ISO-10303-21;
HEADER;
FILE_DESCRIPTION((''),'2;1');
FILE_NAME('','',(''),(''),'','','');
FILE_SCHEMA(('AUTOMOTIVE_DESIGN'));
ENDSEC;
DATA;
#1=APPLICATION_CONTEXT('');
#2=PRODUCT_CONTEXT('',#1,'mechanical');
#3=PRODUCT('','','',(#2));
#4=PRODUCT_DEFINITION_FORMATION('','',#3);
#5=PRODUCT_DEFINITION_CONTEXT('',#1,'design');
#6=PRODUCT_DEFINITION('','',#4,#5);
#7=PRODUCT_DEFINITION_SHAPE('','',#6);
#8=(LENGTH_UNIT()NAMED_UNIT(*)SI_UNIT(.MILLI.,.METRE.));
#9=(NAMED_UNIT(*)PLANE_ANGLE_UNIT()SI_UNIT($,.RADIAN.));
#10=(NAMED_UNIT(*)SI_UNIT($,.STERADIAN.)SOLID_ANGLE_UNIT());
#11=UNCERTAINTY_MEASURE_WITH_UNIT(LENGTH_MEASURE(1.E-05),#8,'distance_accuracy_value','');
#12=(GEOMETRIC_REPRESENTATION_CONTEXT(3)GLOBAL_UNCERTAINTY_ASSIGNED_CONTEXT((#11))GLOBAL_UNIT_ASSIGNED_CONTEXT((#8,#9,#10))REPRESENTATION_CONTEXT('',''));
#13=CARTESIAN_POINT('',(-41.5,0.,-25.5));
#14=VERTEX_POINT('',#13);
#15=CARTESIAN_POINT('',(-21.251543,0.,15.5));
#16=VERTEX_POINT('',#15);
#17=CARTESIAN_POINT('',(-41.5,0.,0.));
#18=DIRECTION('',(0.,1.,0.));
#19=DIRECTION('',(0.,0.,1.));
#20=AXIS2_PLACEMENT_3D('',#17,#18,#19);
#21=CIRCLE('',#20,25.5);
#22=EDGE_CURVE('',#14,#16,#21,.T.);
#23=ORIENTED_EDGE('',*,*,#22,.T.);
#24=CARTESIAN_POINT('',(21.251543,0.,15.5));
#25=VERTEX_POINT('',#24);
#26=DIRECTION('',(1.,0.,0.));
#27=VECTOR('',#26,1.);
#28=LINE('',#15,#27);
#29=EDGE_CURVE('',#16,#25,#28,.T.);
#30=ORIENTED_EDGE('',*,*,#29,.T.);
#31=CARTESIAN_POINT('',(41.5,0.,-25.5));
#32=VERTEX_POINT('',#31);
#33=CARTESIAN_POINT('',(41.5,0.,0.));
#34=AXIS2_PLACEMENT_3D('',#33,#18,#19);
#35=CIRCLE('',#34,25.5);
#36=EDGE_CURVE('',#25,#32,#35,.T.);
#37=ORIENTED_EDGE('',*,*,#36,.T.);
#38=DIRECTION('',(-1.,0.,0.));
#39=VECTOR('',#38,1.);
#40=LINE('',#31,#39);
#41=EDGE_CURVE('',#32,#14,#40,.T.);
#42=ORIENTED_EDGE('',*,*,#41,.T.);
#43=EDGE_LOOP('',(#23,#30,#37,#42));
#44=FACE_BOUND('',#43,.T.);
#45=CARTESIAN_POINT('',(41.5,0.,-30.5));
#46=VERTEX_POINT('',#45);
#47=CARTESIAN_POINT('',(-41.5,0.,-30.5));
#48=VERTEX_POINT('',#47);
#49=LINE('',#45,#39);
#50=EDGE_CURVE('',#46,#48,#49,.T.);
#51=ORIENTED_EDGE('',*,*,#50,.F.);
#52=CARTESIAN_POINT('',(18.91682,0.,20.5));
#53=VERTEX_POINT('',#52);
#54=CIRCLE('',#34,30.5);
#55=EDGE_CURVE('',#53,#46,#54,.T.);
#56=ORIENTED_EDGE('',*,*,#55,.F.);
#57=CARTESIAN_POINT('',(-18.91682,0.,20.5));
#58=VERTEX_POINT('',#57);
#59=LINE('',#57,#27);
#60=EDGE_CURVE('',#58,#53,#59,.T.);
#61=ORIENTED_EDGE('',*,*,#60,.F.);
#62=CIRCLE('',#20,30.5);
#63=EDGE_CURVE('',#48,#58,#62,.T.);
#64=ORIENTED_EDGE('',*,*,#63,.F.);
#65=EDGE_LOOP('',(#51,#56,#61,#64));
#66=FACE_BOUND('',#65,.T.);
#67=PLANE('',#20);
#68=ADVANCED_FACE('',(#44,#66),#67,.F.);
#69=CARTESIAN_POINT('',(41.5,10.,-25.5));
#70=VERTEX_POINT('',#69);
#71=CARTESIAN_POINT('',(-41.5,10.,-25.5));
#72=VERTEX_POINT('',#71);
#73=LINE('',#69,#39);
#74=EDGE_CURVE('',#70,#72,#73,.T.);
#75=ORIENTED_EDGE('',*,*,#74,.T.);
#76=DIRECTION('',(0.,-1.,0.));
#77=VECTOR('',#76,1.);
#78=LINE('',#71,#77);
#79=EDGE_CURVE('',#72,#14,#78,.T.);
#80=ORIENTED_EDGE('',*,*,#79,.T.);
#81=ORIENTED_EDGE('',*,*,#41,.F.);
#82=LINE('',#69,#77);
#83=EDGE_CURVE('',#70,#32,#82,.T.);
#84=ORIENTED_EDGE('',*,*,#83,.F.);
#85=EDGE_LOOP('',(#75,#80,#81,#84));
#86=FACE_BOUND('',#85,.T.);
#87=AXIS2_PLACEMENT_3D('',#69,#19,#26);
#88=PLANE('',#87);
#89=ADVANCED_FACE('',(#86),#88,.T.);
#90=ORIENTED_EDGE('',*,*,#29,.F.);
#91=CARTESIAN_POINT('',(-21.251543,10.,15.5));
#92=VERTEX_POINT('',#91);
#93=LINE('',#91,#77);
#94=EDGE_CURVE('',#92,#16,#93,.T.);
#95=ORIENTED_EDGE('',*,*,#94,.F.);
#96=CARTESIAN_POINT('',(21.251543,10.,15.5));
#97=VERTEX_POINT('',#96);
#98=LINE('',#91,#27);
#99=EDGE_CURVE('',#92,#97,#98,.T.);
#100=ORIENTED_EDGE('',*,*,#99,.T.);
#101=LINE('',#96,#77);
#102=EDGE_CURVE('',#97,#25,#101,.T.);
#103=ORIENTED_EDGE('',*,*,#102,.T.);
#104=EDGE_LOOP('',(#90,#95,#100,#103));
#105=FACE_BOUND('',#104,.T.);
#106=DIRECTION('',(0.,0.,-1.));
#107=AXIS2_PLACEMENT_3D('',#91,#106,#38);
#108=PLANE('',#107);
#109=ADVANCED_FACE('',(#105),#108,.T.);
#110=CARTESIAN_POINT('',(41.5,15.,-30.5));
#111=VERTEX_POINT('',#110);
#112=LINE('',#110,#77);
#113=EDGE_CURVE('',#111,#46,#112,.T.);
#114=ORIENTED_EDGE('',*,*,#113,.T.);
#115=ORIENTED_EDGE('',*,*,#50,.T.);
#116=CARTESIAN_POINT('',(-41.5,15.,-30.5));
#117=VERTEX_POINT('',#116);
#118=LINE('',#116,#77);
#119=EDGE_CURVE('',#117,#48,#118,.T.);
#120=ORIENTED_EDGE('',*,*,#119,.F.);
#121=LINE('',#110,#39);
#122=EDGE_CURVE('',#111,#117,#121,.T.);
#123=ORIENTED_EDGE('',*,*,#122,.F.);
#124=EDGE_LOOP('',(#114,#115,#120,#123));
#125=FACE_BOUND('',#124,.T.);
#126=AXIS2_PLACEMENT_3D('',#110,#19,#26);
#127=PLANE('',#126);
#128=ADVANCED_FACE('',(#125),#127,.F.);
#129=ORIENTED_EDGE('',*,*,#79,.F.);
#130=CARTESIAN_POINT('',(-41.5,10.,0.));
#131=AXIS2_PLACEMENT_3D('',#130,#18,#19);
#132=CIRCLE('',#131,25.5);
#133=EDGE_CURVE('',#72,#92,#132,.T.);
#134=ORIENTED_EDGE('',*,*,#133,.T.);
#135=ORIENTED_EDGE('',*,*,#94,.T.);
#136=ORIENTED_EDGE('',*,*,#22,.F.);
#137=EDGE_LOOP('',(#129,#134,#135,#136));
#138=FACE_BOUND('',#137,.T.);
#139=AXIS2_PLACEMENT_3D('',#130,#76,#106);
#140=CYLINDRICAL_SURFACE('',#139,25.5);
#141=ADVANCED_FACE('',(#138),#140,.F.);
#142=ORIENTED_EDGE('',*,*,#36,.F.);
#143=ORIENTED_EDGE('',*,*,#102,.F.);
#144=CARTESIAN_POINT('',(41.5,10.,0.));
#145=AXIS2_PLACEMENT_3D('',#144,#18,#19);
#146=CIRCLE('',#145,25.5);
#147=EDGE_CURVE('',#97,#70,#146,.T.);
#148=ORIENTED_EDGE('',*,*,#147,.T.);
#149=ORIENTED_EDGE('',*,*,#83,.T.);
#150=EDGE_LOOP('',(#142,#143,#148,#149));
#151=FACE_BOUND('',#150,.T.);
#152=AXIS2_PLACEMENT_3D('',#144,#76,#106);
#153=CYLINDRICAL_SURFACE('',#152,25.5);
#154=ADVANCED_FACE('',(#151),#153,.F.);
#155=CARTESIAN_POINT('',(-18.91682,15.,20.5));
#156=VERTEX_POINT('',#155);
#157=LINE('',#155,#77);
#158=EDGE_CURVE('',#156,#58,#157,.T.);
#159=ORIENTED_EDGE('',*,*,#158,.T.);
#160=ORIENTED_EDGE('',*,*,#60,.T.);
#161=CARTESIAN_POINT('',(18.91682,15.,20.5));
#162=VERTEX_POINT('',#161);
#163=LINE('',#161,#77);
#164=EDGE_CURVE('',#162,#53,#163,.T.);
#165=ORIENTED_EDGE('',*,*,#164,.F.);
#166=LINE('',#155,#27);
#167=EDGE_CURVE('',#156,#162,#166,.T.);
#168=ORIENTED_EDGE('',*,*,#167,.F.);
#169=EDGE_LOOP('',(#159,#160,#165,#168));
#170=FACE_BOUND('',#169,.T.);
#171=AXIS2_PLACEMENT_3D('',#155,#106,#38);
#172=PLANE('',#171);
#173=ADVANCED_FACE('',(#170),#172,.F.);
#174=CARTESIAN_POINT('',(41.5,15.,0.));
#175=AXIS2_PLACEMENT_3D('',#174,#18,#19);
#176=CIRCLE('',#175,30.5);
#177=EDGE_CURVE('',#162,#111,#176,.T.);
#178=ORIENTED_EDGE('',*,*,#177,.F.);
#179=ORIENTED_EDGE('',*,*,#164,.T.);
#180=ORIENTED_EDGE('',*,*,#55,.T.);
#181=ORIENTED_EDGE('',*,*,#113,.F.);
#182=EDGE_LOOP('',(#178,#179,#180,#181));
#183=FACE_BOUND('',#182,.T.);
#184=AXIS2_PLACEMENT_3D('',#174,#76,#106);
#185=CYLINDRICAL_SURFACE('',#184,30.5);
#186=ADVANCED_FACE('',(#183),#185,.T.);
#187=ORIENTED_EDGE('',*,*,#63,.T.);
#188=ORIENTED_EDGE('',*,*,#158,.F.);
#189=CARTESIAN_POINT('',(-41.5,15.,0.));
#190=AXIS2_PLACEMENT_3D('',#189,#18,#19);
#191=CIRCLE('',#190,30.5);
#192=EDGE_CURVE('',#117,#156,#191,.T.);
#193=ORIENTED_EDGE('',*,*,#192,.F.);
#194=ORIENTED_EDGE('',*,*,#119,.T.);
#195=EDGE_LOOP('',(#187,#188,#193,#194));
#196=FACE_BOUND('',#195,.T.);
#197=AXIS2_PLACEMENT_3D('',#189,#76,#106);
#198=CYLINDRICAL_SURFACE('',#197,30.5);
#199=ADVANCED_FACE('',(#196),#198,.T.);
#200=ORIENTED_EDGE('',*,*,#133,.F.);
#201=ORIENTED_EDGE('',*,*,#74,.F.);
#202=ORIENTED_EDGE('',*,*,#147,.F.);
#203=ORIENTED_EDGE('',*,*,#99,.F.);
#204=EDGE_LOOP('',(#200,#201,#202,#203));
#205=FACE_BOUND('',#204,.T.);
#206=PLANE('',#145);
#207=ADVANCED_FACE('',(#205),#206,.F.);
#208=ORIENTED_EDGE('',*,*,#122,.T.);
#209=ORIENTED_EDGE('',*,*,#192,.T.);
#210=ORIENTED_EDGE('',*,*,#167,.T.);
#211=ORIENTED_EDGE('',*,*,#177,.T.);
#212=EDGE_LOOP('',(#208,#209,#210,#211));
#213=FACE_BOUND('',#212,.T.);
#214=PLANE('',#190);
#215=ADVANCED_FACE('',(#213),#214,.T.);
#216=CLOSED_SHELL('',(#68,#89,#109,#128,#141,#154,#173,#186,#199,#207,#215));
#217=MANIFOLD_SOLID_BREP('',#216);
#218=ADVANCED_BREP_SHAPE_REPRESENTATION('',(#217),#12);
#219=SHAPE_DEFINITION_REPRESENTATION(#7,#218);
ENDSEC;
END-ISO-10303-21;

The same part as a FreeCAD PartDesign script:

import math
import FreeCAD as App
import Part
import Sketcher

doc = App.newDocument("Part")
body = doc.addObject("PartDesign::Body", "Body")

sketch1 = body.newObject("Sketcher::SketchObject", "Sketch")
sketch1.AttachmentSupport = (doc.getObject("XZ_Plane"), [""])
sketch1.MapMode = "FlatFace"
sketch1.addGeometry(Part.LineSegment(App.Vector(42, -30, 0), App.Vector(-42, -30, 0)), False)
sketch1.addGeometry(Part.ArcOfCircle(Part.Circle(App.Vector(-42, 0, 0), App.Vector(0, 0, 1), 30), math.radians(42), math.radians(270)), False)
sketch1.addGeometry(Part.LineSegment(App.Vector(-19, 20, 0), App.Vector(19, 20, 0)), False)
sketch1.addGeometry(Part.ArcOfCircle(Part.Circle(App.Vector(42, 0, 0), App.Vector(0, 0, 1), 30), math.radians(-90), math.radians(138)), False)
sketch1.addConstraint(Sketcher.Constraint("Tangent", 0, 2, 1, 2))
sketch1.addConstraint(Sketcher.Constraint("Coincident", 1, 1, 2, 1))
sketch1.addConstraint(Sketcher.Constraint("Coincident", 2, 2, 3, 2))
sketch1.addConstraint(Sketcher.Constraint("Tangent", 3, 1, 0, 1))
sketch1.addConstraint(Sketcher.Constraint("Horizontal", 0))
sketch1.addConstraint(Sketcher.Constraint("Horizontal", 2))
sketch1.addConstraint(Sketcher.Constraint("Equal", 1, 3))
sketch1.addConstraint(Sketcher.Constraint("Symmetric", 1, 3, 3, 3, -1, 1))
sketch1.addConstraint(Sketcher.Constraint("Radius", 1, 30.5))
sketch1.addConstraint(Sketcher.Constraint("DistanceX", 0, 2, 0, 1, 83.0))
sketch1.addConstraint(Sketcher.Constraint("DistanceY", 0, 2, 1, 1, 51.0))
pad1 = body.newObject("PartDesign::Pad", "Pad")
pad1.Profile = sketch1
pad1.Length = 15
pad1.Reversed = True

sketch2 = body.newObject("Sketcher::SketchObject", "Sketch001")
sketch2.AttachmentSupport = (doc.getObject("XZ_Plane"), [""])
sketch2.MapMode = "FlatFace"
sketch2.addGeometry(Part.LineSegment(App.Vector(42, -26, 0), App.Vector(-42, -26, 0)), False)
sketch2.addGeometry(Part.ArcOfCircle(Part.Circle(App.Vector(-42, 0, 0), App.Vector(0, 0, 1), 26), math.radians(37), math.radians(270)), False)
sketch2.addGeometry(Part.LineSegment(App.Vector(-21, 16, 0), App.Vector(21, 16, 0)), False)
sketch2.addGeometry(Part.ArcOfCircle(Part.Circle(App.Vector(42, 0, 0), App.Vector(0, 0, 1), 26), math.radians(-90), math.radians(143)), False)
sketch2.addConstraint(Sketcher.Constraint("Tangent", 0, 2, 1, 2))
sketch2.addConstraint(Sketcher.Constraint("Coincident", 1, 1, 2, 1))
sketch2.addConstraint(Sketcher.Constraint("Coincident", 2, 2, 3, 2))
sketch2.addConstraint(Sketcher.Constraint("Tangent", 3, 1, 0, 1))
sketch2.addConstraint(Sketcher.Constraint("Horizontal", 0))
sketch2.addConstraint(Sketcher.Constraint("Horizontal", 2))
sketch2.addConstraint(Sketcher.Constraint("Equal", 1, 3))
sketch2.addConstraint(Sketcher.Constraint("Symmetric", 1, 3, 3, 3, -1, 1))
sketch2.addConstraint(Sketcher.Constraint("Radius", 1, 25.5))
sketch2.addConstraint(Sketcher.Constraint("DistanceX", 0, 2, 0, 1, 83.0))
sketch2.addConstraint(Sketcher.Constraint("DistanceY", 0, 2, 1, 1, 41.0))
pocket1 = body.newObject("PartDesign::Pocket", "Pocket")
pocket1.Profile = sketch2
pocket1.Length = 10

doc.recompute()
